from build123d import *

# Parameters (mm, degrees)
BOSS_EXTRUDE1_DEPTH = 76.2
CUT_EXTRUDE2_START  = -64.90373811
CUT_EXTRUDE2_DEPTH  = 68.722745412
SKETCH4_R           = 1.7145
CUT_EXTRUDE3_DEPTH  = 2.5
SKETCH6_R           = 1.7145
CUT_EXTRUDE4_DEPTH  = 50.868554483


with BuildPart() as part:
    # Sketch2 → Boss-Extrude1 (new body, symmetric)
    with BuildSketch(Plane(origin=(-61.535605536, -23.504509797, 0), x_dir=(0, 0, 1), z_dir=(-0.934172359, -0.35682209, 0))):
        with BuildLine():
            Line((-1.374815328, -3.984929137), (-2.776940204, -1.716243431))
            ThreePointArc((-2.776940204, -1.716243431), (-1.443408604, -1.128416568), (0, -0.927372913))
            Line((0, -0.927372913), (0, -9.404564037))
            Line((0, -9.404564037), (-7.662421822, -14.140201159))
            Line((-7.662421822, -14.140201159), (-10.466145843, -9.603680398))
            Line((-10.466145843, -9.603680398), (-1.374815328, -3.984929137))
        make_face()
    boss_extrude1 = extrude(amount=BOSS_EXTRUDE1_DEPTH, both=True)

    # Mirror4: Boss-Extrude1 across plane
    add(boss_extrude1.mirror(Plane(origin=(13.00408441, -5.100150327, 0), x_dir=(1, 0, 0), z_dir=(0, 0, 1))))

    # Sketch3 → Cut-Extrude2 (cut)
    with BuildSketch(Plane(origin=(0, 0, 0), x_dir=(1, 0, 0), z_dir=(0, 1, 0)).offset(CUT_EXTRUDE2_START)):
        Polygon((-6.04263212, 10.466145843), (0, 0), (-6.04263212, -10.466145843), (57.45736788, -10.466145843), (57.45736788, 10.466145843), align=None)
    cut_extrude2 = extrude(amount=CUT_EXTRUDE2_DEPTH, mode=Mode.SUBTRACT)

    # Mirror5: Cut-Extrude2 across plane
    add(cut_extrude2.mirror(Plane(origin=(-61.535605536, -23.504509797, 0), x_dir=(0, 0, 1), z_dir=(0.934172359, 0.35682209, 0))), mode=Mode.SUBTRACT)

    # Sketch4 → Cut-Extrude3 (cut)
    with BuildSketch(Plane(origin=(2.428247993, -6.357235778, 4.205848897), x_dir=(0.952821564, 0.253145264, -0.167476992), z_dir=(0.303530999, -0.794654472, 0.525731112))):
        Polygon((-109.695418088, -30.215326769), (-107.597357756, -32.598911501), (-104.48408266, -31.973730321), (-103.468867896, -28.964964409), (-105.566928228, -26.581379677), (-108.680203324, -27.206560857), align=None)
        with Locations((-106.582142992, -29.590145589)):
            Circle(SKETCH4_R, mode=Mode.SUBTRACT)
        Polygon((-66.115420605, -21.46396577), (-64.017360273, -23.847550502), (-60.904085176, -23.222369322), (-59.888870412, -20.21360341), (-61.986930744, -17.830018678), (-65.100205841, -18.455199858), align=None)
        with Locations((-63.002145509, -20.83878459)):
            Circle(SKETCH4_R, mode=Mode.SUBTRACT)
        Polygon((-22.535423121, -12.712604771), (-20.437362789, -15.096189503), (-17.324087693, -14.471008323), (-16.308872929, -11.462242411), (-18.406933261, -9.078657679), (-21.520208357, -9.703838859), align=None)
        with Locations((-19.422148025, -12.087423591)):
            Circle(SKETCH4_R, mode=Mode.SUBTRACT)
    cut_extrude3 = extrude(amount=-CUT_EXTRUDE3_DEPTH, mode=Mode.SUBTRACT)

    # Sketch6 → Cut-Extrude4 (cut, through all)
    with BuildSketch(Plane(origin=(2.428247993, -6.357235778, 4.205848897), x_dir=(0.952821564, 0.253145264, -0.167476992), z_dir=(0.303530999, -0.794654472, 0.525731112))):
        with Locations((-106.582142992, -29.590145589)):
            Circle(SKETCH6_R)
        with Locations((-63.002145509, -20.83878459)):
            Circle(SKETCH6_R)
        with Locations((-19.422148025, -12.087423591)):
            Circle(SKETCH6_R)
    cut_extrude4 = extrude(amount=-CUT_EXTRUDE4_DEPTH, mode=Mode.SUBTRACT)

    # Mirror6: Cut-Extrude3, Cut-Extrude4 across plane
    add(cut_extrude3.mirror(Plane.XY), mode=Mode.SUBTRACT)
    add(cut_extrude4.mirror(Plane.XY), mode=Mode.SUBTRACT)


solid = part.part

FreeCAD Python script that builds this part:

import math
import FreeCAD as App
import Part
import Sketcher
from FreeCAD import Vector
Q = App.Units.Quantity


def add_polygon(sketch, points):
    """Adds a closed chain of lines whose ends are joined by coincident constraints."""
    first, n = sketch.GeometryCount, len(points)
    for a, b in zip(points, points[1:] + points[:1]):
        sketch.addGeometry(Part.LineSegment(App.Vector(*a, 0), App.Vector(*b, 0)), False)
    for i in range(n):
        sketch.addConstraint(Sketcher.Constraint("Coincident", first + i, 2, first + (i + 1) % n, 1))

doc = App.newDocument("Part")
body = doc.addObject("PartDesign::Body", "Body")

# Sketch on an angled plane
sketch1 = body.newObject("Sketcher::SketchObject", "Sketch")
sketch1.Placement = App.Placement(Vector(-61.535606, -23.50451, 0), App.Rotation(Vector(0, 0, 1), Vector(-0.35682209, 0.934172359, 0), Vector(-0.934172359, -0.35682209, 0), "ZXY"))
sketch1.addGeometry(Part.LineSegment(Vector(-2.77694, -1.716243, 0), Vector(-1.374815, -3.984929, 0)), False)
sketch1.addGeometry(Part.LineSegment(Vector(-1.374815, -3.984929, 0), Vector(-10.466146, -9.60368, 0)), False)
sketch1.addGeometry(Part.LineSegment(Vector(-10.466146, -9.60368, 0), Vector(-7.662422, -14.140201, 0)), False)
sketch1.addGeometry(Part.LineSegment(Vector(-7.662422, -14.140201, 0), Vector(0, -9.404564, 0)), False)
sketch1.addGeometry(Part.LineSegment(Vector(0, -9.404564, 0), Vector(0, -0.927373, 0)), False)
sketch1.addGeometry(Part.ArcOfCircle(Part.Circle(Vector(0, -6.209427, 0), Vector(0, 0, 1), 5.282054), math.radians(90), math.radians(121.717474)), False)
sketch1.addConstraint(Sketcher.Constraint("Coincident", 0, 2, 1, 1))
sketch1.addConstraint(Sketcher.Constraint("Coincident", 1, 2, 2, 1))
sketch1.addConstraint(Sketcher.Constraint("Coincident", 2, 2, 3, 1))
sketch1.addConstraint(Sketcher.Constraint("Coincident", 3, 2, 4, 1))
sketch1.addConstraint(Sketcher.Constraint("Coincident", 4, 2, 5, 1))
sketch1.addConstraint(Sketcher.Constraint("Coincident", 5, 2, 0, 1))
sketch1.addConstraint(Sketcher.Constraint("Vertical", 4))
sketch1.addConstraint(Sketcher.Constraint("PointOnObject", 5, 3, -2))
sketch1.addConstraint(Sketcher.Constraint("PointOnObject", 3, 2, -2))
sketch1.addConstraint(Sketcher.Constraint("Perpendicular", 0, 1))
sketch1.addConstraint(Sketcher.Constraint("Perpendicular", 1, 2))
sketch1.addConstraint(Sketcher.Constraint("Perpendicular", 2, 3))
sketch1.addConstraint(Sketcher.Constraint("Distance", 0, Q("0.105 in")))
sketch1.addConstraint(Sketcher.Constraint("Radius", 5, Q("5.282054 mm")))
sketch1.addConstraint(Sketcher.Constraint("Distance", 1, Q("10.6875 mm")))
sketch1.addConstraint(Sketcher.Constraint("Distance", 2, Q("5.333 mm")))
sketch1.addConstraint(Sketcher.Constraint("DistanceY", 4, 1, 4, 2, Q("8.477191 mm")))
sketch1.addConstraint(Sketcher.Constraint("DistanceY", 2, 2, -1, 1, Q("14.140201 mm")))
sketch1.addConstraint(Sketcher.Constraint("DistanceX", 2, 2, -1, 1, Q("7.662422 mm")))
pad1 = body.newObject("PartDesign::Pad", "Pad")
pad1.Profile = sketch1
pad1.Length = Q("6 in")
pad1.Midplane = True
doc.recompute()

mirrored = body.newObject("PartDesign::Mirrored", "Mirrored")
mirrored.Originals = [pad1]
mirrored.MirrorPlane = (doc.getObject("XY_Plane"), [""])
body.Tip = mirrored

# Sketch on XZ plane
sketch2 = body.newObject("Sketcher::SketchObject", "Sketch001")
sketch2.AttachmentSupport = (doc.getObject("XZ_Plane"), [""])
sketch2.MapMode = "FlatFace"
sketch2.AttachmentOffset = App.Placement(Vector(0, 0, 64.903738), App.Rotation())
add_polygon(sketch2, [(-6.042632, -10.466146), (0, 0), (-6.042632, 10.466146), (57.457368, 10.466146), (57.457368, -10.466146)])  # lines 0-4
sketch2.addConstraint(Sketcher.Constraint("Horizontal", 2))
sketch2.addConstraint(Sketcher.Constraint("Vertical", 3))
sketch2.addConstraint(Sketcher.Constraint("Horizontal", 4))
sketch2.addConstraint(Sketcher.Constraint("Coincident", 0, 2, -1, 1))
sketch2.addConstraint(Sketcher.Constraint("Symmetric", 1, 2, 4, 2, -1))
sketch2.addConstraint(Sketcher.Constraint("DistanceX", 2, 1, 2, 2, Q("2.5 in")))
sketch2.addConstraint(Sketcher.Constraint("Angle", 0, Q("60 deg")))
sketch2.addConstraint(Sketcher.Constraint("DistanceY", 3, 2, 3, 1, Q("20.932292 mm")))
pocket1 = body.newObject("PartDesign::Pocket", "Pocket")
pocket1.Profile = sketch2
pocket1.Length = 68.722745
doc.recompute()

datumplane = body.newObject("PartDesign::Plane", "DatumPlane")
datumplane.Placement = App.Placement(Vector(-61.535606, -23.50451, 0), App.Rotation(Vector(0.35682209, -0.934172359, 0), Vector(0, 0, -1), Vector(0.934172359, 0.35682209, 0), "ZXY"))
mirrored2 = body.newObject("PartDesign::Mirrored", "Mirrored001")
mirrored2.Originals = [pocket1]
mirrored2.MirrorPlane = (datumplane, [""])
body.Tip = mirrored2

# Sketch on an angled plane
sketch3 = body.newObject("Sketcher::SketchObject", "Sketch002")
sketch3.Placement = App.Placement(Vector(2.428248, -6.357236, 4.205849), App.Rotation(Vector(0.952821564, 0.253145264, -0.167476992), Vector(0, 0.551762399, 0.834001352), Vector(0.303530999, -0.794654472, 0.525731112), "ZXY"))
add_polygon(sketch3, [(-109.695418, -30.215327), (-107.597358, -32.598911), (-104.484083, -31.97373), (-103.468868, -28.964964), (-105.566928, -26.58138), (-108.680203, -27.206561)])  # lines 0-5
sketch3.addGeometry(Part.Circle(Vector(-106.582143, -29.590146, 0), Vector(0, 0, 1), 1.7145), False)  # 6
add_polygon(sketch3, [(-66.115421, -21.463966), (-64.01736, -23.84755), (-60.904085, -23.222369), (-59.88887, -20.213603), (-61.986931, -17.830019), (-65.100206, -18.4552)])  # lines 7-12
sketch3.addGeometry(Part.Circle(Vector(-63.002146, -20.838785, 0), Vector(0, 0, 1), 1.7145), False)  # 13
add_polygon(sketch3, [(-22.535423, -12.712605), (-20.437363, -15.096189), (-17.324088, -14.471008), (-16.308873, -11.462242), (-18.406933, -9.078658), (-21.520208, -9.703839)])  # lines 14-19
sketch3.addGeometry(Part.Circle(Vector(-19.422148, -12.087424, 0), Vector(0, 0, 1), 1.7145), False)  # 20
sketch3.addConstraint(Sketcher.Constraint("Equal", 6, 13))
sketch3.addConstraint(Sketcher.Constraint("Equal", 13, 20))
sketch3.addConstraint(Sketcher.Constraint("Parallel", 0, 3))
sketch3.addConstraint(Sketcher.Constraint("Parallel", 1, 4))
sketch3.addConstraint(Sketcher.Constraint("Parallel", 2, 5))
sketch3.addConstraint(Sketcher.Constraint("Parallel", 3, 7))
sketch3.addConstraint(Sketcher.Constraint("Parallel", 4, 8))
sketch3.addConstraint(Sketcher.Constraint("Parallel", 5, 9))
sketch3.addConstraint(Sketcher.Constraint("Parallel", 7, 10))
sketch3.addConstraint(Sketcher.Constraint("Parallel", 8, 11))
sketch3.addConstraint(Sketcher.Constraint("Parallel", 9, 12))
sketch3.addConstraint(Sketcher.Constraint("Parallel", 10, 14))
sketch3.addConstraint(Sketcher.Constraint("Parallel", 11, 15))
sketch3.addConstraint(Sketcher.Constraint("Parallel", 12, 16))
sketch3.addConstraint(Sketcher.Constraint("Parallel", 14, 17))
sketch3.addConstraint(Sketcher.Constraint("Parallel", 15, 18))
sketch3.addConstraint(Sketcher.Constraint("Parallel", 16, 19))
sketch3.addConstraint(Sketcher.Constraint("Equal", 0, 1))
sketch3.addConstraint(Sketcher.Constraint("Equal", 1, 2))
sketch3.addConstraint(Sketcher.Constraint("Equal", 2, 3))
sketch3.addConstraint(Sketcher.Constraint("Equal", 5, 7))
sketch3.addConstraint(Sketcher.Constraint("Equal", 7, 8))
sketch3.addConstraint(Sketcher.Constraint("Equal", 8, 9))
sketch3.addConstraint(Sketcher.Constraint("Equal", 9, 10))
sketch3.addConstraint(Sketcher.Constraint("Equal", 12, 14))
sketch3.addConstraint(Sketcher.Constraint("Equal", 14, 15))
sketch3.addConstraint(Sketcher.Constraint("Equal", 15, 16))
sketch3.addConstraint(Sketcher.Constraint("Equal", 16, 17))
sketch3.addConstraint(Sketcher.Constraint("Diameter", 6, Q("0.135 in")))
sketch3.addConstraint(Sketcher.Constraint("DistanceY", 11, 2, -1, 1, Q("18.4552 mm")))
sketch3.addConstraint(Sketcher.Constraint("DistanceX", 20, 3, -1, 1, Q("19.422148 mm")))
sketch3.addConstraint(Sketcher.Constraint("DistanceY", 0, 2, -1, 1, Q("32.598911 mm")))
sketch3.addConstraint(Sketcher.Constraint("DistanceY", 1, 2, -1, 1, Q("31.97373 mm")))
sketch3.addConstraint(Sketcher.Constraint("DistanceX", 3, 2, -1, 1, Q("105.566928 mm")))
sketch3.addConstraint(Sketcher.Constraint("DistanceY", 3, 2, -1, 1, Q("26.58138 mm")))
sketch3.addConstraint(Sketcher.Constraint("DistanceX", 5, 2, -1, 1, Q("109.695418 mm")))
sketch3.addConstraint(Sketcher.Constraint("DistanceX", 7, 2, -1, 1, Q("64.01736 mm")))
sketch3.addConstraint(Sketcher.Constraint("DistanceX", 10, 2, -1, 1, Q("61.986931 mm")))
sketch3.addConstraint(Sketcher.Constraint("DistanceY", 14, 2, -1, 1, Q("15.096189 mm")))
sketch3.addConstraint(Sketcher.Constraint("DistanceX", 18, 2, -1, 1, Q("21.520208 mm")))
sketch3.addConstraint(Sketcher.Constraint("DistanceY", 6, 3, 13, 3, Q("8.751361 mm")))
sketch3.addConstraint(Sketcher.Constraint("DistanceY", 13, 3, 20, 3, Q("8.751361 mm")))
sketch3.addConstraint(Sketcher.Constraint("DistanceX", 6, 3, 1, 2, Q("2.09806 mm")))
sketch3.addConstraint(Sketcher.Constraint("DistanceY", 6, 3, 2, 2, Q("0.625181 mm")))
sketch3.addConstraint(Sketcher.Constraint("DistanceX", 13, 3, 8, 2, Q("2.09806 mm")))
pocket2 = body.newObject("PartDesign::Pocket", "Pocket001")
pocket2.Profile = sketch3
pocket2.Length = 2.5

# Sketch on an angled plane
sketch4 = body.newObject("Sketcher::SketchObject", "Sketch003")
sketch4.Placement = App.Placement(Vector(2.428248, -6.357236, 4.205849), App.Rotation(Vector(0.952821564, 0.253145264, -0.167476992), Vector(0, 0.551762399, 0.834001352), Vector(0.303530999, -0.794654472, 0.525731112), "ZXY"))
sketch4.addGeometry(Part.Circle(Vector(-106.582143, -29.590146, 0), Vector(0, 0, 1), 1.7145), False)
sketch4.addGeometry(Part.Circle(Vector(-63.002146, -20.838785, 0), Vector(0, 0, 1), 1.7145), False)
sketch4.addGeometry(Part.Circle(Vector(-19.422148, -12.087424, 0), Vector(0, 0, 1), 1.7145), False)
sketch4.addConstraint(Sketcher.Constraint("Equal", 0, 1))
sketch4.addConstraint(Sketcher.Constraint("Equal", 1, 2))
sketch4.addConstraint(Sketcher.Constraint("Diameter", 0, Q("0.135 in")))
sketch4.addConstraint(Sketcher.Constraint("DistanceX", 2, 3, -1, 1, Q("19.422148 mm")))
sketch4.addConstraint(Sketcher.Constraint("DistanceY", 0, 3, 1, 3, Q("8.751361 mm")))
sketch4.addConstraint(Sketcher.Constraint("DistanceY", 1, 3, 2, 3, Q("8.751361 mm")))
sketch4.addConstraint(Sketcher.Constraint("DistanceX", 0, 3, -1, 1, Q("106.582143 mm")))
sketch4.addConstraint(Sketcher.Constraint("DistanceY", 0, 3, -1, 1, Q("29.590146 mm")))
sketch4.addConstraint(Sketcher.Constraint("DistanceX", 1, 3, -1, 1, Q("63.002146 mm")))
pocket3 = body.newObject("PartDesign::Pocket", "Pocket002")
pocket3.Profile = sketch4
pocket3.Type = "ThroughAll"
doc.recompute()

mirrored3 = body.newObject("PartDesign::Mirrored", "Mirrored002")
mirrored3.Originals = [pocket2, pocket3]
mirrored3.MirrorPlane = (doc.getObject("XY_Plane"), [""])
body.Tip = mirrored3

doc.recompute()
